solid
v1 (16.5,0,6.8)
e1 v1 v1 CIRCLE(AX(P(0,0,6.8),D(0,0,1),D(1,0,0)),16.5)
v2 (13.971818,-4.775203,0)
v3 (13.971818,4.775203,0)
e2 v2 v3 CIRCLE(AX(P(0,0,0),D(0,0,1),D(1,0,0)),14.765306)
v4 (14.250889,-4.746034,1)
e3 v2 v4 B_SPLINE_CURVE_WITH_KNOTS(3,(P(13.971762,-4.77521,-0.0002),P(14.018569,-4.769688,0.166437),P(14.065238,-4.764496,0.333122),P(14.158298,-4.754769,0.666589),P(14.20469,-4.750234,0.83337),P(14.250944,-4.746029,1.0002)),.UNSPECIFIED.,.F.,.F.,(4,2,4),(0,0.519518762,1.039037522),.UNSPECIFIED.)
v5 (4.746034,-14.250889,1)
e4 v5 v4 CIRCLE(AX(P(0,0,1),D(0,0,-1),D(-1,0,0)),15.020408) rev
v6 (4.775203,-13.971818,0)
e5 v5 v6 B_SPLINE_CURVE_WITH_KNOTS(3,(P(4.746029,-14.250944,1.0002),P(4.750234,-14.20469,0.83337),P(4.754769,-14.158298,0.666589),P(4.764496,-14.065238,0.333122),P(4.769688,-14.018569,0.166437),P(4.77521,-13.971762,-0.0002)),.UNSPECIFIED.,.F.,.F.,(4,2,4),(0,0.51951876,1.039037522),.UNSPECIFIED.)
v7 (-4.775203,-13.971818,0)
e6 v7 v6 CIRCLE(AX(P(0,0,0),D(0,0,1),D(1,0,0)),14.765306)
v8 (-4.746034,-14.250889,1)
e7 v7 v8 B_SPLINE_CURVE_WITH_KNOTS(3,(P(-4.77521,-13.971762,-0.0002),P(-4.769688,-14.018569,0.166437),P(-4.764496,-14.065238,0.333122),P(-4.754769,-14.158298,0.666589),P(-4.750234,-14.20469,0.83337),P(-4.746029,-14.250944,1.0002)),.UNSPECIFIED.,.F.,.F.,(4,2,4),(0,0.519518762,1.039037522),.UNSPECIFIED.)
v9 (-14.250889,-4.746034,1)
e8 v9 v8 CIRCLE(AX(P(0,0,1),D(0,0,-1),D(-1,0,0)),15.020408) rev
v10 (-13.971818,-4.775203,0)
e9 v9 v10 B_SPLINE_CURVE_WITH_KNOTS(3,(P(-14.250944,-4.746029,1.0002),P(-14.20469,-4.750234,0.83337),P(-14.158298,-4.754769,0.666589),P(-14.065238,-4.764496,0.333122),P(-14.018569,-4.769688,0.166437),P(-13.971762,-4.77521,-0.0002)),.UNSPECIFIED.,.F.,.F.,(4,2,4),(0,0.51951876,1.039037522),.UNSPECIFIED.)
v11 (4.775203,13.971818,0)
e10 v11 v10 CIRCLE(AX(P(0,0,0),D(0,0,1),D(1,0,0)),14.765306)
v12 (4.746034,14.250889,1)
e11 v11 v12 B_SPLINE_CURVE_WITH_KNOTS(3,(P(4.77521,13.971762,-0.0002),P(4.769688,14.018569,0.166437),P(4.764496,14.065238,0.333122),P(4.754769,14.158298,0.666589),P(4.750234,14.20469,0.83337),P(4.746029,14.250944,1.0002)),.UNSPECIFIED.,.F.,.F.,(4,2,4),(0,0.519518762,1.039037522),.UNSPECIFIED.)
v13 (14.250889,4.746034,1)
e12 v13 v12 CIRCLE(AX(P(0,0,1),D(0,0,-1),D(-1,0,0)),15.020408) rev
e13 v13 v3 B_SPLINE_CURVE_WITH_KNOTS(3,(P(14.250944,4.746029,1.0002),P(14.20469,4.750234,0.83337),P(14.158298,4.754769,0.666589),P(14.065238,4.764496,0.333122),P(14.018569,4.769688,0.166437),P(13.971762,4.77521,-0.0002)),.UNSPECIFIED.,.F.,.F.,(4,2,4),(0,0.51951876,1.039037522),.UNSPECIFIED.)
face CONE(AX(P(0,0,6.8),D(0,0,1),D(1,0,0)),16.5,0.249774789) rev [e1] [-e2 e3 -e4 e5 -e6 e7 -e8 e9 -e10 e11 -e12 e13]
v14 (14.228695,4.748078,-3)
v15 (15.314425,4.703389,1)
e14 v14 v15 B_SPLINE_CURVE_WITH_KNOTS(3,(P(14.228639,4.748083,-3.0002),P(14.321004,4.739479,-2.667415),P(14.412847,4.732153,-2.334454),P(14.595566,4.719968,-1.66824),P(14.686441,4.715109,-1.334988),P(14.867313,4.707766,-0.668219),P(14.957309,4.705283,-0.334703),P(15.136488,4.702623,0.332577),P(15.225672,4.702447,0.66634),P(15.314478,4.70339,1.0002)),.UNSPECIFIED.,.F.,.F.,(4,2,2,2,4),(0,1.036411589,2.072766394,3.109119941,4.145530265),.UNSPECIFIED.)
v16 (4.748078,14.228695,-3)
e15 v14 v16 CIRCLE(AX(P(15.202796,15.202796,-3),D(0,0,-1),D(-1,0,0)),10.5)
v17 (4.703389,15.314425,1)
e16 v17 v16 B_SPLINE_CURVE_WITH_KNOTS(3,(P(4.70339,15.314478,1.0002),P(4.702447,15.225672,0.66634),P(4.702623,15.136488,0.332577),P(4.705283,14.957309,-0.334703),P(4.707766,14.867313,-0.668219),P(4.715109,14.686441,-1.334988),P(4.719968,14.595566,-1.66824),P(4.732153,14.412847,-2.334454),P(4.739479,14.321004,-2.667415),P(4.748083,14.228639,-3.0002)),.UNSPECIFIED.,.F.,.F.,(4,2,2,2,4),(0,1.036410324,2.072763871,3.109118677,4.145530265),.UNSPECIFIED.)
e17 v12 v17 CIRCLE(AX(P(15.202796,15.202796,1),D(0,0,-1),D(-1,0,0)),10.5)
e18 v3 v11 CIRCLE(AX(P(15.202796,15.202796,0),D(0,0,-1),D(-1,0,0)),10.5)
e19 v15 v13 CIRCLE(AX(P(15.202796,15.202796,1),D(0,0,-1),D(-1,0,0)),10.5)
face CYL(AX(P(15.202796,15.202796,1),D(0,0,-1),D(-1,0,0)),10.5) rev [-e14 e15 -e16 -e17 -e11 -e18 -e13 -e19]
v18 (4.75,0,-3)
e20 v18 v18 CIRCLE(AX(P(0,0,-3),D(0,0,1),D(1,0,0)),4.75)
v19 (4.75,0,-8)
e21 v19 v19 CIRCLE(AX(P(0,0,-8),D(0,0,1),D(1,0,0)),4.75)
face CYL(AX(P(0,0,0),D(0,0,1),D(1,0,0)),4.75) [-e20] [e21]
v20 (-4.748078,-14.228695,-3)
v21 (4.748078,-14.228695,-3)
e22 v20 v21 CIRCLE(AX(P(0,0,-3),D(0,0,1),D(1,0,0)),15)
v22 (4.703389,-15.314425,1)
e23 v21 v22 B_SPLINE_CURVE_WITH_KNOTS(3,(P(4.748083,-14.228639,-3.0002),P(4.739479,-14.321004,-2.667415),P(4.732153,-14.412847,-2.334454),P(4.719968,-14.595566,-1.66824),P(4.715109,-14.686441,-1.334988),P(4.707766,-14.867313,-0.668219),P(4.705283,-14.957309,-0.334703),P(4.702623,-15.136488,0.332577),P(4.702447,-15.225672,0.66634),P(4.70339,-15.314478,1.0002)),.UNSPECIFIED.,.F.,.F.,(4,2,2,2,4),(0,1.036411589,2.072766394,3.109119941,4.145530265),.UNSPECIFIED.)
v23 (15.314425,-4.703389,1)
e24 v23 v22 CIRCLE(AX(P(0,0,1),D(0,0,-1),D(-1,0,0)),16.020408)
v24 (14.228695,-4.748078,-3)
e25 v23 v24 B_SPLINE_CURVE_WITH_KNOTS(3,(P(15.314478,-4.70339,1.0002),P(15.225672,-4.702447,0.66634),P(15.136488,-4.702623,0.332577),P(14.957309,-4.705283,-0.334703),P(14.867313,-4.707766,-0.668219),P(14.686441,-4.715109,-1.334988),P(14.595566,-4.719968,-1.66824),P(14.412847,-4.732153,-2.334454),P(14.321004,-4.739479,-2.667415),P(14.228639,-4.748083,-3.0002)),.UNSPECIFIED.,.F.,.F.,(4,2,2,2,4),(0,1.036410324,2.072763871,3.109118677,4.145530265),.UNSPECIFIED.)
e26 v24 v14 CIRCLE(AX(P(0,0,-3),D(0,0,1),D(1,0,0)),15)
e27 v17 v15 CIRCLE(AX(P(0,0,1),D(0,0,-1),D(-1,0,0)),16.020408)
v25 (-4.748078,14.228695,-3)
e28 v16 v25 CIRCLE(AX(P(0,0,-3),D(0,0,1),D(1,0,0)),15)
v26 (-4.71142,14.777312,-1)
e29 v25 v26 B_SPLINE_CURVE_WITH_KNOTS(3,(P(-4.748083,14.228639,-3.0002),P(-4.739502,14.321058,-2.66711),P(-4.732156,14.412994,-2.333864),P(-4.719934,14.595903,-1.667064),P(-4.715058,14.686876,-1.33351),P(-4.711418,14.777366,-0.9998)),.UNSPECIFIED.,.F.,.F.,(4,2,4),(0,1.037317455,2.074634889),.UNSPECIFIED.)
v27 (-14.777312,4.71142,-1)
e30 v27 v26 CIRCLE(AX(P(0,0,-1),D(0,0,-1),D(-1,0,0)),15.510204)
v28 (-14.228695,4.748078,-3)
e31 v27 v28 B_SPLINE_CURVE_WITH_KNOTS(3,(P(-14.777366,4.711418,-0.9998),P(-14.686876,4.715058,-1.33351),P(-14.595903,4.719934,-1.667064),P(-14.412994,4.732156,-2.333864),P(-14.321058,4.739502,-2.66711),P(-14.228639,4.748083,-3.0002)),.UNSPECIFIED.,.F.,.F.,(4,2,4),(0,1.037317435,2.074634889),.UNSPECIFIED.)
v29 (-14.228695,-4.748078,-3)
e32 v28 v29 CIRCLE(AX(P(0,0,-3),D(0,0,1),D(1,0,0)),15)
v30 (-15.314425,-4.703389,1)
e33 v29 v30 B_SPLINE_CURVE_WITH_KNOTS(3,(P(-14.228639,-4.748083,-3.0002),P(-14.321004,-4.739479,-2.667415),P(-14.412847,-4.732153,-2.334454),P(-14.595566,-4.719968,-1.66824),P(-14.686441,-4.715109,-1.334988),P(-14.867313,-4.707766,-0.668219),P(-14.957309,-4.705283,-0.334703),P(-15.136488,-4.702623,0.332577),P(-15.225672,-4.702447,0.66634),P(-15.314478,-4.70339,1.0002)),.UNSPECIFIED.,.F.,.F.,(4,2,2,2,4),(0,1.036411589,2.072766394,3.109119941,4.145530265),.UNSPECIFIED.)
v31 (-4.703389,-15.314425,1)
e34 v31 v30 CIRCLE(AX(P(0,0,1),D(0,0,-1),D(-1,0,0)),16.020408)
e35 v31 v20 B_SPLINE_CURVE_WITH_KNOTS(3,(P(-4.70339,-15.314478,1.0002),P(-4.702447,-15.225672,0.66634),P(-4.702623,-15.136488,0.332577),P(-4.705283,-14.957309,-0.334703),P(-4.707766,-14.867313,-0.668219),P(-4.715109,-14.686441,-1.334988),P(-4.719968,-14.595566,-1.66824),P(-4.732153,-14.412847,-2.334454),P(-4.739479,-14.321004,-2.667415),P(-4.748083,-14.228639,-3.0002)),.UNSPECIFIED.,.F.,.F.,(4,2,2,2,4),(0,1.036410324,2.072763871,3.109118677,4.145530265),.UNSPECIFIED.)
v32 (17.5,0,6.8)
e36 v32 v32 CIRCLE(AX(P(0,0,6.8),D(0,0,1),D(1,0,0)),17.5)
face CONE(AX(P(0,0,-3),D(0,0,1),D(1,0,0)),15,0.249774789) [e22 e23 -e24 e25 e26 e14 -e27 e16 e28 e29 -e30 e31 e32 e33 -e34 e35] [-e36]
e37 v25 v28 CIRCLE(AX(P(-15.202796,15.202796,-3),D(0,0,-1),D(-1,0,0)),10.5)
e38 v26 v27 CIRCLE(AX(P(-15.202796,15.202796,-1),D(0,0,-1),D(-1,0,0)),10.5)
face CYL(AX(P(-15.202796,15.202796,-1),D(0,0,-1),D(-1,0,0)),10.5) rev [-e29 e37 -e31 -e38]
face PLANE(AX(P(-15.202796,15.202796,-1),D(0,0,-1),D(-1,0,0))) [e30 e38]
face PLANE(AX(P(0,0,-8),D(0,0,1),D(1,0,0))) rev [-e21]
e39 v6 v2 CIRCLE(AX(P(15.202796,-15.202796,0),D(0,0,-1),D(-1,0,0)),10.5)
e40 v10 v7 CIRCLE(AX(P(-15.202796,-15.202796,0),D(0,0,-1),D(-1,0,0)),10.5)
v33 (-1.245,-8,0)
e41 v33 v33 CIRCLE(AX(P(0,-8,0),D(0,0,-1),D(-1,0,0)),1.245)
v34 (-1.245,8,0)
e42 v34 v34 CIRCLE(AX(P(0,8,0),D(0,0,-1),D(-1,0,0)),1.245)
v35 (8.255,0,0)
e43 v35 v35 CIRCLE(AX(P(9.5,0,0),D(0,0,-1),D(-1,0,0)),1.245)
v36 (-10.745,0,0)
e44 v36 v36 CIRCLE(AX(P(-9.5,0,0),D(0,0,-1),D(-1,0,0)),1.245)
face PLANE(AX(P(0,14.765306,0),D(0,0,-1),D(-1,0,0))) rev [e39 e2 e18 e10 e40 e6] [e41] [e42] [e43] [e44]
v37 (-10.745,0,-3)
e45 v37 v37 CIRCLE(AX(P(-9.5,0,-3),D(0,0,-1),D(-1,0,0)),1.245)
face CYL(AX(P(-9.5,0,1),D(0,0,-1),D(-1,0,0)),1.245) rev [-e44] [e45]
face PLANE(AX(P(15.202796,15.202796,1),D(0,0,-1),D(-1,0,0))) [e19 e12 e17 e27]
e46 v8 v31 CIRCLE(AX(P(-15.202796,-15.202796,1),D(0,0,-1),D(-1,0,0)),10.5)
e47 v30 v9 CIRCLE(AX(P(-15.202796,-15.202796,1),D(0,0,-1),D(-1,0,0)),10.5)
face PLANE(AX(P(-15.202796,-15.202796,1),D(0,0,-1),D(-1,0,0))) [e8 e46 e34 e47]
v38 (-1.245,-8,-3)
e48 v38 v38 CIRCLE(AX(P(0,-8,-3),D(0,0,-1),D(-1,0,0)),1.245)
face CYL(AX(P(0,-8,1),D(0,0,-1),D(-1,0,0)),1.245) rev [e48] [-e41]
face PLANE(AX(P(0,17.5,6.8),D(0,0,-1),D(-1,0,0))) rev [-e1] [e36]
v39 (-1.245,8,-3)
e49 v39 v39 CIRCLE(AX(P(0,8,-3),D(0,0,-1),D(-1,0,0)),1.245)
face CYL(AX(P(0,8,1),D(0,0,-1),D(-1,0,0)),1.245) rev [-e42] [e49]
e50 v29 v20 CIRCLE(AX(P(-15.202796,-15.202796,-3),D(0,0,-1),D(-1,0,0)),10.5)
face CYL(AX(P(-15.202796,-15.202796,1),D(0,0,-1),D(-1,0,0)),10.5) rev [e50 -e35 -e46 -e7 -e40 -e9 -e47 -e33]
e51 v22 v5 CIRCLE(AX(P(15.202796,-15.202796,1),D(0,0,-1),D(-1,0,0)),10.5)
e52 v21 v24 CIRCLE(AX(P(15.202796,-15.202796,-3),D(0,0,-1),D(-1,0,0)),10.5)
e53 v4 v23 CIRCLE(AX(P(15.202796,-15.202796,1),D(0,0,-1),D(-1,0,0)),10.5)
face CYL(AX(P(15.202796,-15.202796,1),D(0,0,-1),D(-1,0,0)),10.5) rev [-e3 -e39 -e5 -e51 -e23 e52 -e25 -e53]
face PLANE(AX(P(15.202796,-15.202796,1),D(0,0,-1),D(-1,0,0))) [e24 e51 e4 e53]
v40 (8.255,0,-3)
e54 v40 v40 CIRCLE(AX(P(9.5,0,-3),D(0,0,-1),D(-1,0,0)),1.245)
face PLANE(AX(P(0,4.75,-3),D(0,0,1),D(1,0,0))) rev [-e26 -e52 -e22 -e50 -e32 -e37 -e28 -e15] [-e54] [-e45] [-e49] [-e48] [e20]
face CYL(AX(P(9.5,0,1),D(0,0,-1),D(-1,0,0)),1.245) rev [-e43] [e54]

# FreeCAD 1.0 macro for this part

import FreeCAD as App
import Part
import Sketcher

doc = App.newDocument("Part")
body = doc.addObject("PartDesign::Body", "Body")

# Sketch on YZ plane
sketch1 = body.newObject("Sketcher::SketchObject", "Sketch")
sketch1.AttachmentSupport = (doc.getObject("YZ_Plane"), [""])
sketch1.MapMode = "FlatFace"
sketch1.addGeometry([
    Part.LineSegment(App.Vector(0, 0, 0), App.Vector(0, -8, 0)),  # 0
    Part.LineSegment(App.Vector(0, -8, 0), App.Vector(4.8, -8, 0)),  # 1
    Part.LineSegment(App.Vector(4.8, -8, 0), App.Vector(4.8, -3, 0)),  # 2
    Part.LineSegment(App.Vector(4.8, -3, 0), App.Vector(15, -3, 0)),  # 3
    Part.LineSegment(App.Vector(15, -3, 0), App.Vector(17.5, 6.8, 0)),  # 4
    Part.LineSegment(App.Vector(17.5, 6.8, 0), App.Vector(16.5, 6.8, 0)),  # 5
    Part.LineSegment(App.Vector(16.5, 6.8, 0), App.Vector(14.8, 0, 0)),  # 6
    Part.LineSegment(App.Vector(14.8, 0, 0), App.Vector(0, 0, 0)),  # 7
], False)
sketch1.addConstraint([
    Sketcher.Constraint("Coincident", 0, 2, 1, 1),
    Sketcher.Constraint("Coincident", 1, 2, 2, 1),
    Sketcher.Constraint("Coincident", 2, 2, 3, 1),
    Sketcher.Constraint("Coincident", 3, 2, 4, 1),
    Sketcher.Constraint("Coincident", 4, 2, 5, 1),
    Sketcher.Constraint("Coincident", 5, 2, 6, 1),
    Sketcher.Constraint("Coincident", 6, 2, 7, 1),
    Sketcher.Constraint("Coincident", 7, 2, 0, 1),
    Sketcher.Constraint("Vertical", 0),
    Sketcher.Constraint("Horizontal", 1),
    Sketcher.Constraint("Vertical", 2),
    Sketcher.Constraint("Horizontal", 3),
    Sketcher.Constraint("Horizontal", 5),
    Sketcher.Constraint("Horizontal", 7),
    Sketcher.Constraint("Coincident", 7, 2, -1, 1),
    Sketcher.Constraint("Parallel", 4, 6),
    Sketcher.Constraint("DistanceX", 5, 2, 5, 1, 1.0),
    Sketcher.Constraint("DistanceY", 0, 2, 0, 1, 8.0),
    Sketcher.Constraint("DistanceY", 2, 1, 2, 2, 5.0),
    Sketcher.Constraint("DistanceX", -1, 1, 3, 2, 15.0),
    Sketcher.Constraint("DistanceX", 1, 1, 1, 2, 4.75),
    Sketcher.Constraint("DistanceX", -1, 1, 4, 2, 17.5),
    Sketcher.Constraint("DistanceY", -1, 1, 4, 2, 6.8),
])
revolution = body.newObject("PartDesign::Revolution", "Revolution")
revolution.Profile = sketch1
revolution.ReferenceAxis = (sketch1, ["V_Axis"])
revolution.Angle = 360

# Sketch on XY plane
sketch2 = body.newObject("Sketcher::SketchObject", "Sketch001")
sketch2.AttachmentSupport = (doc.getObject("XY_Plane"), [""])
sketch2.MapMode = "FlatFace"
sketch2.AttachmentOffset = App.Placement(App.Vector(0, 0, -3), App.Rotation())
sketch2.addGeometry([
    Part.Circle(App.Vector(0, 8, 0), App.Vector(0, 0, 1), 1.2),  # 0
    Part.Circle(App.Vector(0, -8, 0), App.Vector(0, 0, 1), 1.2),  # 1
    Part.Circle(App.Vector(-9.5, 0, 0), App.Vector(0, 0, 1), 1.2),  # 2
    Part.Circle(App.Vector(9.5, 0, 0), App.Vector(0, 0, 1), 1.2),  # 3
    Part.Circle(App.Vector(15.2, -15.2, 0), App.Vector(0, 0, 1), 10.5),  # 4
    Part.Circle(App.Vector(15.2, 15.2, 0), App.Vector(0, 0, 1), 10.5),  # 5
    Part.Circle(App.Vector(-15.2, -15.2, 0), App.Vector(0, 0, 1), 10.5),  # 6
], False)
sketch2.addConstraint([
    Sketcher.Constraint("Equal", 0, 1),
    Sketcher.Constraint("Equal", 1, 2),
    Sketcher.Constraint("Equal", 2, 3),
    Sketcher.Constraint("Equal", 4, 5),
    Sketcher.Constraint("Equal", 5, 6),
    Sketcher.Constraint("Symmetric", 0, 3, 1, 3, -1, 1),
    Sketcher.Constraint("Symmetric", 2, 3, 3, 3, -1, 1),
    Sketcher.Constraint("Symmetric", 5, 3, 6, 3, -1, 1),
    Sketcher.Constraint("Symmetric", 4, 3, 6, 3, -2),
    Sketcher.Constraint("PointOnObject", 0, 3, -2),
    Sketcher.Constraint("PointOnObject", 2, 3, -1),
    Sketcher.Constraint("Diameter", 4, 21.0),
    Sketcher.Constraint("Diameter", 0, 2.49),
    Sketcher.Constraint("DistanceY", -1, 1, 0, 3, 8.0),
    Sketcher.Constraint("DistanceX", 2, 3, 3, 3, 19.0),
    Sketcher.Constraint("DistanceY", 4, 3, 5, 3, 30.405592),
    Sketcher.Constraint("DistanceX", 6, 3, 4, 3, 30.405592),
])
pocket1 = body.newObject("PartDesign::Pocket", "Pocket")
pocket1.Profile = sketch2
pocket1.Length = 4
pocket1.Reversed = True

# Sketch on XY plane
sketch3 = body.newObject("Sketcher::SketchObject", "Sketch002")
sketch3.AttachmentSupport = (doc.getObject("XY_Plane"), [""])
sketch3.MapMode = "FlatFace"
sketch3.AttachmentOffset = App.Placement(App.Vector(0, 0, -3), App.Rotation())
sketch3.addGeometry(Part.Circle(App.Vector(-15, 15, 0), App.Vector(0, 0, 1), 10), False)
sketch3.addConstraint([
    Sketcher.Constraint("Diameter", 0, 21.0),
    Sketcher.Constraint("DistanceX", 0, 3, -1, 1, 15.202796),
    Sketcher.Constraint("DistanceY", -1, 1, 0, 3, 15.202796),
])
pocket2 = body.newObject("PartDesign::Pocket", "Pocket001")
pocket2.Profile = sketch3
pocket2.Length = 2
pocket2.Reversed = True

doc.recompute()
